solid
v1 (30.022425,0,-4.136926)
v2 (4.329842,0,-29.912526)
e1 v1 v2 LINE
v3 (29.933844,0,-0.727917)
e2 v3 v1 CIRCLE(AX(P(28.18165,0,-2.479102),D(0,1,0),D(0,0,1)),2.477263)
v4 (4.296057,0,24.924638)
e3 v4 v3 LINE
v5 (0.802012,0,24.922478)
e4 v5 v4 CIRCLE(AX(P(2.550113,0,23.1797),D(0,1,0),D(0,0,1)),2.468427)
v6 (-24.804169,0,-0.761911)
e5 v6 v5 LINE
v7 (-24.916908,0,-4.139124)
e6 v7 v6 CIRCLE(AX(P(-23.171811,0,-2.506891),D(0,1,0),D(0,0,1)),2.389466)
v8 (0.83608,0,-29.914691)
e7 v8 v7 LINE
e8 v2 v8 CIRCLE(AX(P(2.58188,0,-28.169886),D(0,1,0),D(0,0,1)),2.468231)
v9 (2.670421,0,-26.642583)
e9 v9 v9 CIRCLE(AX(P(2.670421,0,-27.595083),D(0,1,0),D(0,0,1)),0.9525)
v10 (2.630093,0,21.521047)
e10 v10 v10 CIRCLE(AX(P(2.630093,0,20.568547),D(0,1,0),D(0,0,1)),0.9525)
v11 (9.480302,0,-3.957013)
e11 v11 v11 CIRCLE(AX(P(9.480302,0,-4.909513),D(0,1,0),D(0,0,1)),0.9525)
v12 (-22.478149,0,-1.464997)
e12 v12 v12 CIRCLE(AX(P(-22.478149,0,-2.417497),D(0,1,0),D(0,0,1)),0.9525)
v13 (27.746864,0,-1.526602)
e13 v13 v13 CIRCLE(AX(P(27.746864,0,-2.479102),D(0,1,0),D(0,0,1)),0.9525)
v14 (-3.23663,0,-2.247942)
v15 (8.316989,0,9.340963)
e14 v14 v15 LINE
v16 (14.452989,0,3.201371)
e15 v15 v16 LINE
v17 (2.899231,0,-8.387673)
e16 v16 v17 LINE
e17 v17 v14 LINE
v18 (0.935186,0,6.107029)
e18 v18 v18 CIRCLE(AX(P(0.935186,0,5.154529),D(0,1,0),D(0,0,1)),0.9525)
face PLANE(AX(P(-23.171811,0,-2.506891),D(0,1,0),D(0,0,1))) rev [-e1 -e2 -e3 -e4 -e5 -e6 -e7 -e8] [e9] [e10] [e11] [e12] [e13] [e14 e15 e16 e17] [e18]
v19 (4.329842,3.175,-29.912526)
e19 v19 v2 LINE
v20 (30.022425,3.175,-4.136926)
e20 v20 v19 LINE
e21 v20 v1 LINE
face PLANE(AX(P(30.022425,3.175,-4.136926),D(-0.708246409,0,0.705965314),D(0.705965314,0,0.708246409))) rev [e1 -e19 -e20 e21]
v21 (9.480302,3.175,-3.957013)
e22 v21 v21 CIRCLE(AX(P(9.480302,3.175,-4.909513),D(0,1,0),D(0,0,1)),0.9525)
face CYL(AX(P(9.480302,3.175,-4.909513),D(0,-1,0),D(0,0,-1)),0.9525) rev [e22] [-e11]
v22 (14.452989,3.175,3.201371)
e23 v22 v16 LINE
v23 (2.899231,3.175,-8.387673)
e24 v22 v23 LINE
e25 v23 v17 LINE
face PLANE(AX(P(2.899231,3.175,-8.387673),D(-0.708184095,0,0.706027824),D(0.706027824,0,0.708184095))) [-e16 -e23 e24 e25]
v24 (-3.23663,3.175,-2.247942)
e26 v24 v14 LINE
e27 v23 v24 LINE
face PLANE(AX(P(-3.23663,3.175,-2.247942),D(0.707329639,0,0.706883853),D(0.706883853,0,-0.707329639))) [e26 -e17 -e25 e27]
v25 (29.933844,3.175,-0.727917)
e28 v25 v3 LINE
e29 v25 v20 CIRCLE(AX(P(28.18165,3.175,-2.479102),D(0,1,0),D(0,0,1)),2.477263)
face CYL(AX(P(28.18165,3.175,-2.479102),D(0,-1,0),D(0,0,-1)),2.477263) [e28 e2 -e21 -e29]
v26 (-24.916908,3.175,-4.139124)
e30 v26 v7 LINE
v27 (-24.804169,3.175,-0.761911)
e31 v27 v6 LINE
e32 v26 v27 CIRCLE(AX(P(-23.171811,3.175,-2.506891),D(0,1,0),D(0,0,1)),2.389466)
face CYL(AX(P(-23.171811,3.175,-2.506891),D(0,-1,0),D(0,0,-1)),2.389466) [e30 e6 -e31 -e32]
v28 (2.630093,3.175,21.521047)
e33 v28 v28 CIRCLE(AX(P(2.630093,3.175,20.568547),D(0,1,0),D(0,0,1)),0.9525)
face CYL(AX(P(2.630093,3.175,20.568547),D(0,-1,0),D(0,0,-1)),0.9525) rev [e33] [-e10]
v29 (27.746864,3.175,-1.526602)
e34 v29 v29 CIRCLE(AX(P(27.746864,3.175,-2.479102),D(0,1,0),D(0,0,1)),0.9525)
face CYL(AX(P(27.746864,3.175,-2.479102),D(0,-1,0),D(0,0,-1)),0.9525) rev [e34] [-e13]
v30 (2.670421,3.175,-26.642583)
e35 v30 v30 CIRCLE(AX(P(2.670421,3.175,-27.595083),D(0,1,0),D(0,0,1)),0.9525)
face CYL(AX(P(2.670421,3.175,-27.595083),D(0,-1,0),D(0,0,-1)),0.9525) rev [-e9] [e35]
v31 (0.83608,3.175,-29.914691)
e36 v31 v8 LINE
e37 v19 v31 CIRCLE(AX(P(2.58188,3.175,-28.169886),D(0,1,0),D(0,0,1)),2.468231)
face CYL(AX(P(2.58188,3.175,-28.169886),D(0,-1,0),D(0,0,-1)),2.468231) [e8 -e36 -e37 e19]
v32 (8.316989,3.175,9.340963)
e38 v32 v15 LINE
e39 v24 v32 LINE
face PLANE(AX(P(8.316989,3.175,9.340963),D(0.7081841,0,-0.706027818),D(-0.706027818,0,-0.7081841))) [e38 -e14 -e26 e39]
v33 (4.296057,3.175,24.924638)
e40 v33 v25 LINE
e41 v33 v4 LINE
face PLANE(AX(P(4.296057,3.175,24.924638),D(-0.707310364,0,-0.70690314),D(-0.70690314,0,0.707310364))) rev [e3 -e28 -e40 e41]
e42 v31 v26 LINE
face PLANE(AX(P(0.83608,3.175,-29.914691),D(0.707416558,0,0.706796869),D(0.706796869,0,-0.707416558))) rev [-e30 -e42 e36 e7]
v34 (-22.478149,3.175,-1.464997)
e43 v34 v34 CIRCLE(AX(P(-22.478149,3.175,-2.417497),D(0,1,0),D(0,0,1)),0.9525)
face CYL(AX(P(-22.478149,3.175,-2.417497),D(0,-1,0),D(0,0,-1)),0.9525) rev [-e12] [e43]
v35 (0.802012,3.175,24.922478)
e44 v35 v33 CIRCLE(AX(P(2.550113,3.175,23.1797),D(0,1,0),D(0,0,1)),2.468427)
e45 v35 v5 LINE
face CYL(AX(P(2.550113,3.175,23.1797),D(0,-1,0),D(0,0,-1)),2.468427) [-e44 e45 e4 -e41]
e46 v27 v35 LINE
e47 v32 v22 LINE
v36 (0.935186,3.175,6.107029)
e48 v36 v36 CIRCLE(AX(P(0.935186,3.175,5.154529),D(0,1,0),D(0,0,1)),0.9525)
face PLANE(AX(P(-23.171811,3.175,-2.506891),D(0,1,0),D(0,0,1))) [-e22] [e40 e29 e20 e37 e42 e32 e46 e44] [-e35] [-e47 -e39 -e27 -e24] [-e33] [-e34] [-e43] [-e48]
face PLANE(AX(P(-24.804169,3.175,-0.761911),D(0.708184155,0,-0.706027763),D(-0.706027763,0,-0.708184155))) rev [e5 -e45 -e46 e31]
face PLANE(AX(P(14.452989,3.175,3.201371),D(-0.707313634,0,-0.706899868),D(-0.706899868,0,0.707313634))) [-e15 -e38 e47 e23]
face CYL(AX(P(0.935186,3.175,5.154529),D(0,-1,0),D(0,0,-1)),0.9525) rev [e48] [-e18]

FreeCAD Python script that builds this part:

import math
import FreeCAD as App
import Part
import Sketcher

V = App.Vector
Q = App.Units.Quantity

doc = App.newDocument("Part")
body = doc.addObject("PartDesign::Body", "Body")

# Sketch on XZ plane
sketch1 = body.newObject("Sketcher::SketchObject", "Sketch")
sketch1.AttachmentSupport = (doc.getObject("XZ_Plane"), [""])
sketch1.MapMode = "FlatFace"
sketch1.addGeometry([
    Part.LineSegment(V(0.8, -29.9, 0), V(-24.9, -4.1, 0)),  # 0
    Part.ArcOfCircle(Part.Circle(V(-23.2, -2.5, 0), V(0, 0, 1), 2.4), math.radians(133), math.radians(223)),  # 1
    Part.LineSegment(V(-24.8, -0.8, 0), V(0.8, 24.9, 0)),  # 2
    Part.ArcOfCircle(Part.Circle(V(2.6, 23.2, 0), V(0, 0, 1), 2.5), math.radians(45), math.radians(135)),  # 3
    Part.LineSegment(V(4.3, 24.9, 0), V(29.9, -0.7, 0)),  # 4
    Part.ArcOfCircle(Part.Circle(V(28.2, -2.5, 0), V(0, 0, 1), 2.5), math.radians(-42), math.radians(45)),  # 5
    Part.LineSegment(V(30, -4.1, 0), V(4.3, -29.9, 0)),  # 6
    Part.ArcOfCircle(Part.Circle(V(2.6, -28.2, 0), V(0, 0, 1), 2.5), math.radians(-135), math.radians(-45)),  # 7
    Part.Circle(V(2.6, 20.6, 0), V(0, 0, 1), 1),  # 8
    Part.Circle(V(-22.5, -2.4, 0), V(0, 0, 1), 1),  # 9
    Part.Circle(V(0.9, 5.2, 0), V(0, 0, 1), 1),  # 10
    Part.LineSegment(V(14.5, 3.2, 0), V(8.3, 9.3, 0)),  # 11
    Part.LineSegment(V(8.3, 9.3, 0), V(-3.2, -2.2, 0)),  # 12
    Part.LineSegment(V(-3.2, -2.2, 0), V(2.9, -8.4, 0)),  # 13
    Part.LineSegment(V(2.9, -8.4, 0), V(14.5, 3.2, 0)),  # 14
    Part.Circle(V(27.7, -2.5, 0), V(0, 0, 1), 1),  # 15
    Part.Circle(V(9.5, -4.9, 0), V(0, 0, 1), 1),  # 16
    Part.Circle(V(2.7, -27.6, 0), V(0, 0, 1), 1),  # 17
], False)
sketch1.addConstraint([
    Sketcher.Constraint("Coincident", 0, 2, 1, 2),
    Sketcher.Constraint("Coincident", 1, 1, 2, 1),
    Sketcher.Constraint("Tangent", 2, 2, 3, 2),
    Sketcher.Constraint("Tangent", 3, 1, 4, 1),
    Sketcher.Constraint("Tangent", 4, 2, 5, 2),
    Sketcher.Constraint("Coincident", 5, 1, 6, 1),
    Sketcher.Constraint("Coincident", 6, 2, 7, 2),
    Sketcher.Constraint("Coincident", 7, 1, 0, 1),
    Sketcher.Constraint("Coincident", 11, 2, 12, 1),
    Sketcher.Constraint("Coincident", 12, 2, 13, 1),
    Sketcher.Constraint("Coincident", 13, 2, 14, 1),
    Sketcher.Constraint("Coincident", 14, 2, 11, 1),
    Sketcher.Constraint("Equal", 8, 9),
    Sketcher.Constraint("Equal", 9, 10),
    Sketcher.Constraint("Equal", 10, 15),
    Sketcher.Constraint("Equal", 15, 16),
    Sketcher.Constraint("Equal", 16, 17),
    Sketcher.Constraint("Parallel", 2, 12),
    Sketcher.Constraint("Parallel", 12, 14),
    Sketcher.Constraint("Horizontal", 5, 3, 15, 3),
    Sketcher.Constraint("Diameter", 8, Q("0.075 in")),
    Sketcher.Constraint("Radius", 7, 2.468231),
    Sketcher.Constraint("DistanceY", -1, 1, 2, 2, Q("0.9811999 in")),
    Sketcher.Constraint("Radius", 1, 2.389466),
    Sketcher.Constraint("Radius", 3, 2.468427),
    Sketcher.Constraint("Radius", 5, 2.477263),
    Sketcher.Constraint("DistanceY", 1, 3, 1, 1, Q("0.0687 in")),
    Sketcher.Constraint("DistanceY", -1, 1, 3, 3, 23.1797),
    Sketcher.Constraint("DistanceY", 5, 3, 3, 3, 25.658802),
    Sketcher.Constraint("DistanceX", 9, 3, 5, 3, 50.659799),
    Sketcher.Constraint("DistanceY", 16, 3, 1, 1, 4.147602),
    Sketcher.Constraint("DistanceX", 7, 1, 7, 3, 1.745801),
    Sketcher.Constraint("DistanceY", 13, 2, 10, 3, 13.542201),
    Sketcher.Constraint("DistanceX", 11, 2, 14, 2, 6.136),
    Sketcher.Constraint("Distance", 4, 36.26775),
    Sketcher.Constraint("Distance", 14, 16.364451),
    Sketcher.Constraint("DistanceX", 1, 3, -1, 1, 23.171811),
    Sketcher.Constraint("DistanceY", 1, 3, -1, 1, 2.506891),
    Sketcher.Constraint("DistanceX", -1, 1, 7, 3, 2.58188),
    Sketcher.Constraint("DistanceY", -1, 1, 10, 3, 5.154529),
    Sketcher.Constraint("DistanceX", -1, 1, 17, 3, 2.670421),
    Sketcher.Constraint("DistanceX", 0, 2, -1, 1, 24.916908),
    Sketcher.Constraint("DistanceY", 7, 1, -1, 1, 29.914691),
    Sketcher.Constraint("DistanceX", -1, 1, 11, 2, 8.316989),
    Sketcher.Constraint("DistanceX", 12, 2, -1, 1, 3.23663),
    Sketcher.Constraint("DistanceX", 3, 3, 8, 3, 0.07998),
    Sketcher.Constraint("DistanceY", 5, 3, 8, 3, 23.047649),
    Sketcher.Constraint("DistanceY", 7, 3, 9, 3, 25.752389),
    Sketcher.Constraint("DistanceX", 8, 3, 15, 3, 25.116771),
    Sketcher.Constraint("DistanceX", 16, 3, 15, 3, 18.266562),
    Sketcher.Constraint("DistanceY", 17, 3, 16, 3, 22.68557),
    Sketcher.Constraint("DistanceX", 10, 3, 3, 1, 3.360871),
    Sketcher.Constraint("DistanceX", 15, 3, 5, 1, 2.275561),
    Sketcher.Constraint("DistanceY", 6, 2, 7, 3, 1.74264),
    Sketcher.Constraint("DistanceY", 12, 2, 10, 3, 7.402471),
])
pad1 = body.newObject("PartDesign::Pad", "Pad")
pad1.Profile = sketch1
pad1.Length = Q("0.125 in")
pad1.Reversed = True

doc.recompute()
